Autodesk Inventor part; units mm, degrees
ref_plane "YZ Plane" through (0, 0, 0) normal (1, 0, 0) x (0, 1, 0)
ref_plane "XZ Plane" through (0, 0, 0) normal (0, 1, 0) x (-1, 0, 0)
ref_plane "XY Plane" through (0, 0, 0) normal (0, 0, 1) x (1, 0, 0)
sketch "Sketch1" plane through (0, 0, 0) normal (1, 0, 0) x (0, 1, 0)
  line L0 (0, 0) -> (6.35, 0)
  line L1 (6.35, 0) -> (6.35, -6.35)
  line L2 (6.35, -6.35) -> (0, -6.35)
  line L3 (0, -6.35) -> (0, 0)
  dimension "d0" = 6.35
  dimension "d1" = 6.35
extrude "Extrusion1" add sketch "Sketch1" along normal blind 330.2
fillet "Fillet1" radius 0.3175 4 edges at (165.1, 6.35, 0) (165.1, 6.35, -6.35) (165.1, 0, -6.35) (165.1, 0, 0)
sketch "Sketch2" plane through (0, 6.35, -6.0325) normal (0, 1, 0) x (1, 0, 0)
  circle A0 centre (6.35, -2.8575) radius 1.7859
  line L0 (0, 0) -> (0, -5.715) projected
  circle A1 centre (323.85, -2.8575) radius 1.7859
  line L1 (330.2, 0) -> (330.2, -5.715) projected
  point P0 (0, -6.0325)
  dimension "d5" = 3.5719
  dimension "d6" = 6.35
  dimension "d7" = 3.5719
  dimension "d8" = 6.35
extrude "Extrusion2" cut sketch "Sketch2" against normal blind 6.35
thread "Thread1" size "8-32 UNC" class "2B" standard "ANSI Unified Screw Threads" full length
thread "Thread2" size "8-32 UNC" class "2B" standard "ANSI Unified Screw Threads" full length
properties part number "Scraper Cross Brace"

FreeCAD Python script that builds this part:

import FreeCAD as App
import Part
import Sketcher
Q = App.Units.Quantity


def edges_at(feature, points):
    """Names of the edges that pass closest to the given points."""
    edges = feature.Shape.Edges
    near = lambda p: min(range(len(edges)), key=lambda i: edges[i].distToShape(Part.Vertex(*p))[0])
    return sorted({f"Edge{near(p) + 1}" for p in points})

doc = App.newDocument("Part")
body = doc.addObject("PartDesign::Body", "Body")

sketch1 = body.newObject("Sketcher::SketchObject", "Sketch")
sketch1.AttachmentSupport = (doc.getObject("YZ_Plane"), [""])
sketch1.MapMode = "FlatFace"
sketch1.addGeometry([
    Part.LineSegment(App.Vector(6.35, 0, 0), App.Vector(0, 0, 0)),
    Part.LineSegment(App.Vector(0, 0, 0), App.Vector(0, -6.35, 0)),
    Part.LineSegment(App.Vector(0, -6.35, 0), App.Vector(6.35, -6.35, 0)),
    Part.LineSegment(App.Vector(6.35, -6.35, 0), App.Vector(6.35, 0, 0)),
], False)
sketch1.addConstraint([
    Sketcher.Constraint("Coincident", 0, 2, 1, 1),
    Sketcher.Constraint("Coincident", 1, 2, 2, 1),
    Sketcher.Constraint("Coincident", 2, 2, 3, 1),
    Sketcher.Constraint("Coincident", 3, 2, 0, 1),
    Sketcher.Constraint("Horizontal", 0),
    Sketcher.Constraint("Vertical", 1),
    Sketcher.Constraint("Horizontal", 2),
    Sketcher.Constraint("Vertical", 3),
    Sketcher.Constraint("Coincident", 0, 2, -1, 1),
    Sketcher.Constraint("Equal", 2, 1),
    Sketcher.Constraint("DistanceX", 0, 2, 0, 1, Q("0.25 in")),
])
pad1 = body.newObject("PartDesign::Pad", "Pad")
pad1.Profile = sketch1
pad1.Length = Q("13 in")
doc.recompute()

fillet = body.newObject("PartDesign::Fillet", "Fillet")
fillet.Base = (pad1, edges_at(pad1, [
    (165.1, 6.35, 0),
    (165.1, 6.35, -6.35),
    (165.1, 0, -6.35),
    (165.1, 0, 0),
]))
fillet.Radius = Q("0.0125 in")

sketch2 = body.newObject("Sketcher::SketchObject", "Sketch001")
sketch2.AttachmentSupport = (doc.getObject("XZ_Plane"), [""])
sketch2.MapMode = "FlatFace"
sketch2.AttachmentOffset = App.Placement(App.Vector(0, 0, -0.25 * 25.4), App.Rotation())
sketch2.addGeometry([
    Part.Circle(App.Vector(6.35, -3.175, 0), App.Vector(0, 0, 1), 1.7859),
    Part.Circle(App.Vector(323.85, -3.175, 0), App.Vector(0, 0, 1), 1.7859),
], False)
sketch2.addConstraint([
    Sketcher.Constraint("Equal", 0, 1),
    Sketcher.Constraint("Horizontal", 0, 3, 1, 3),
    Sketcher.Constraint("Diameter", 0, Q("0.140622 in")),
    Sketcher.Constraint("DistanceX", -1, 1, 0, 3, Q("0.25 in")),
    Sketcher.Constraint("DistanceX", 0, 3, 1, 3, Q("12.5 in")),
    Sketcher.Constraint("DistanceY", 0, 3, -1, 1, Q("0.125 in")),
])
pocket1 = body.newObject("PartDesign::Pocket", "Pocket")
pocket1.Profile = sketch2
pocket1.Length = Q("0.25 in")
pocket1.Reversed = True

doc.recompute()
